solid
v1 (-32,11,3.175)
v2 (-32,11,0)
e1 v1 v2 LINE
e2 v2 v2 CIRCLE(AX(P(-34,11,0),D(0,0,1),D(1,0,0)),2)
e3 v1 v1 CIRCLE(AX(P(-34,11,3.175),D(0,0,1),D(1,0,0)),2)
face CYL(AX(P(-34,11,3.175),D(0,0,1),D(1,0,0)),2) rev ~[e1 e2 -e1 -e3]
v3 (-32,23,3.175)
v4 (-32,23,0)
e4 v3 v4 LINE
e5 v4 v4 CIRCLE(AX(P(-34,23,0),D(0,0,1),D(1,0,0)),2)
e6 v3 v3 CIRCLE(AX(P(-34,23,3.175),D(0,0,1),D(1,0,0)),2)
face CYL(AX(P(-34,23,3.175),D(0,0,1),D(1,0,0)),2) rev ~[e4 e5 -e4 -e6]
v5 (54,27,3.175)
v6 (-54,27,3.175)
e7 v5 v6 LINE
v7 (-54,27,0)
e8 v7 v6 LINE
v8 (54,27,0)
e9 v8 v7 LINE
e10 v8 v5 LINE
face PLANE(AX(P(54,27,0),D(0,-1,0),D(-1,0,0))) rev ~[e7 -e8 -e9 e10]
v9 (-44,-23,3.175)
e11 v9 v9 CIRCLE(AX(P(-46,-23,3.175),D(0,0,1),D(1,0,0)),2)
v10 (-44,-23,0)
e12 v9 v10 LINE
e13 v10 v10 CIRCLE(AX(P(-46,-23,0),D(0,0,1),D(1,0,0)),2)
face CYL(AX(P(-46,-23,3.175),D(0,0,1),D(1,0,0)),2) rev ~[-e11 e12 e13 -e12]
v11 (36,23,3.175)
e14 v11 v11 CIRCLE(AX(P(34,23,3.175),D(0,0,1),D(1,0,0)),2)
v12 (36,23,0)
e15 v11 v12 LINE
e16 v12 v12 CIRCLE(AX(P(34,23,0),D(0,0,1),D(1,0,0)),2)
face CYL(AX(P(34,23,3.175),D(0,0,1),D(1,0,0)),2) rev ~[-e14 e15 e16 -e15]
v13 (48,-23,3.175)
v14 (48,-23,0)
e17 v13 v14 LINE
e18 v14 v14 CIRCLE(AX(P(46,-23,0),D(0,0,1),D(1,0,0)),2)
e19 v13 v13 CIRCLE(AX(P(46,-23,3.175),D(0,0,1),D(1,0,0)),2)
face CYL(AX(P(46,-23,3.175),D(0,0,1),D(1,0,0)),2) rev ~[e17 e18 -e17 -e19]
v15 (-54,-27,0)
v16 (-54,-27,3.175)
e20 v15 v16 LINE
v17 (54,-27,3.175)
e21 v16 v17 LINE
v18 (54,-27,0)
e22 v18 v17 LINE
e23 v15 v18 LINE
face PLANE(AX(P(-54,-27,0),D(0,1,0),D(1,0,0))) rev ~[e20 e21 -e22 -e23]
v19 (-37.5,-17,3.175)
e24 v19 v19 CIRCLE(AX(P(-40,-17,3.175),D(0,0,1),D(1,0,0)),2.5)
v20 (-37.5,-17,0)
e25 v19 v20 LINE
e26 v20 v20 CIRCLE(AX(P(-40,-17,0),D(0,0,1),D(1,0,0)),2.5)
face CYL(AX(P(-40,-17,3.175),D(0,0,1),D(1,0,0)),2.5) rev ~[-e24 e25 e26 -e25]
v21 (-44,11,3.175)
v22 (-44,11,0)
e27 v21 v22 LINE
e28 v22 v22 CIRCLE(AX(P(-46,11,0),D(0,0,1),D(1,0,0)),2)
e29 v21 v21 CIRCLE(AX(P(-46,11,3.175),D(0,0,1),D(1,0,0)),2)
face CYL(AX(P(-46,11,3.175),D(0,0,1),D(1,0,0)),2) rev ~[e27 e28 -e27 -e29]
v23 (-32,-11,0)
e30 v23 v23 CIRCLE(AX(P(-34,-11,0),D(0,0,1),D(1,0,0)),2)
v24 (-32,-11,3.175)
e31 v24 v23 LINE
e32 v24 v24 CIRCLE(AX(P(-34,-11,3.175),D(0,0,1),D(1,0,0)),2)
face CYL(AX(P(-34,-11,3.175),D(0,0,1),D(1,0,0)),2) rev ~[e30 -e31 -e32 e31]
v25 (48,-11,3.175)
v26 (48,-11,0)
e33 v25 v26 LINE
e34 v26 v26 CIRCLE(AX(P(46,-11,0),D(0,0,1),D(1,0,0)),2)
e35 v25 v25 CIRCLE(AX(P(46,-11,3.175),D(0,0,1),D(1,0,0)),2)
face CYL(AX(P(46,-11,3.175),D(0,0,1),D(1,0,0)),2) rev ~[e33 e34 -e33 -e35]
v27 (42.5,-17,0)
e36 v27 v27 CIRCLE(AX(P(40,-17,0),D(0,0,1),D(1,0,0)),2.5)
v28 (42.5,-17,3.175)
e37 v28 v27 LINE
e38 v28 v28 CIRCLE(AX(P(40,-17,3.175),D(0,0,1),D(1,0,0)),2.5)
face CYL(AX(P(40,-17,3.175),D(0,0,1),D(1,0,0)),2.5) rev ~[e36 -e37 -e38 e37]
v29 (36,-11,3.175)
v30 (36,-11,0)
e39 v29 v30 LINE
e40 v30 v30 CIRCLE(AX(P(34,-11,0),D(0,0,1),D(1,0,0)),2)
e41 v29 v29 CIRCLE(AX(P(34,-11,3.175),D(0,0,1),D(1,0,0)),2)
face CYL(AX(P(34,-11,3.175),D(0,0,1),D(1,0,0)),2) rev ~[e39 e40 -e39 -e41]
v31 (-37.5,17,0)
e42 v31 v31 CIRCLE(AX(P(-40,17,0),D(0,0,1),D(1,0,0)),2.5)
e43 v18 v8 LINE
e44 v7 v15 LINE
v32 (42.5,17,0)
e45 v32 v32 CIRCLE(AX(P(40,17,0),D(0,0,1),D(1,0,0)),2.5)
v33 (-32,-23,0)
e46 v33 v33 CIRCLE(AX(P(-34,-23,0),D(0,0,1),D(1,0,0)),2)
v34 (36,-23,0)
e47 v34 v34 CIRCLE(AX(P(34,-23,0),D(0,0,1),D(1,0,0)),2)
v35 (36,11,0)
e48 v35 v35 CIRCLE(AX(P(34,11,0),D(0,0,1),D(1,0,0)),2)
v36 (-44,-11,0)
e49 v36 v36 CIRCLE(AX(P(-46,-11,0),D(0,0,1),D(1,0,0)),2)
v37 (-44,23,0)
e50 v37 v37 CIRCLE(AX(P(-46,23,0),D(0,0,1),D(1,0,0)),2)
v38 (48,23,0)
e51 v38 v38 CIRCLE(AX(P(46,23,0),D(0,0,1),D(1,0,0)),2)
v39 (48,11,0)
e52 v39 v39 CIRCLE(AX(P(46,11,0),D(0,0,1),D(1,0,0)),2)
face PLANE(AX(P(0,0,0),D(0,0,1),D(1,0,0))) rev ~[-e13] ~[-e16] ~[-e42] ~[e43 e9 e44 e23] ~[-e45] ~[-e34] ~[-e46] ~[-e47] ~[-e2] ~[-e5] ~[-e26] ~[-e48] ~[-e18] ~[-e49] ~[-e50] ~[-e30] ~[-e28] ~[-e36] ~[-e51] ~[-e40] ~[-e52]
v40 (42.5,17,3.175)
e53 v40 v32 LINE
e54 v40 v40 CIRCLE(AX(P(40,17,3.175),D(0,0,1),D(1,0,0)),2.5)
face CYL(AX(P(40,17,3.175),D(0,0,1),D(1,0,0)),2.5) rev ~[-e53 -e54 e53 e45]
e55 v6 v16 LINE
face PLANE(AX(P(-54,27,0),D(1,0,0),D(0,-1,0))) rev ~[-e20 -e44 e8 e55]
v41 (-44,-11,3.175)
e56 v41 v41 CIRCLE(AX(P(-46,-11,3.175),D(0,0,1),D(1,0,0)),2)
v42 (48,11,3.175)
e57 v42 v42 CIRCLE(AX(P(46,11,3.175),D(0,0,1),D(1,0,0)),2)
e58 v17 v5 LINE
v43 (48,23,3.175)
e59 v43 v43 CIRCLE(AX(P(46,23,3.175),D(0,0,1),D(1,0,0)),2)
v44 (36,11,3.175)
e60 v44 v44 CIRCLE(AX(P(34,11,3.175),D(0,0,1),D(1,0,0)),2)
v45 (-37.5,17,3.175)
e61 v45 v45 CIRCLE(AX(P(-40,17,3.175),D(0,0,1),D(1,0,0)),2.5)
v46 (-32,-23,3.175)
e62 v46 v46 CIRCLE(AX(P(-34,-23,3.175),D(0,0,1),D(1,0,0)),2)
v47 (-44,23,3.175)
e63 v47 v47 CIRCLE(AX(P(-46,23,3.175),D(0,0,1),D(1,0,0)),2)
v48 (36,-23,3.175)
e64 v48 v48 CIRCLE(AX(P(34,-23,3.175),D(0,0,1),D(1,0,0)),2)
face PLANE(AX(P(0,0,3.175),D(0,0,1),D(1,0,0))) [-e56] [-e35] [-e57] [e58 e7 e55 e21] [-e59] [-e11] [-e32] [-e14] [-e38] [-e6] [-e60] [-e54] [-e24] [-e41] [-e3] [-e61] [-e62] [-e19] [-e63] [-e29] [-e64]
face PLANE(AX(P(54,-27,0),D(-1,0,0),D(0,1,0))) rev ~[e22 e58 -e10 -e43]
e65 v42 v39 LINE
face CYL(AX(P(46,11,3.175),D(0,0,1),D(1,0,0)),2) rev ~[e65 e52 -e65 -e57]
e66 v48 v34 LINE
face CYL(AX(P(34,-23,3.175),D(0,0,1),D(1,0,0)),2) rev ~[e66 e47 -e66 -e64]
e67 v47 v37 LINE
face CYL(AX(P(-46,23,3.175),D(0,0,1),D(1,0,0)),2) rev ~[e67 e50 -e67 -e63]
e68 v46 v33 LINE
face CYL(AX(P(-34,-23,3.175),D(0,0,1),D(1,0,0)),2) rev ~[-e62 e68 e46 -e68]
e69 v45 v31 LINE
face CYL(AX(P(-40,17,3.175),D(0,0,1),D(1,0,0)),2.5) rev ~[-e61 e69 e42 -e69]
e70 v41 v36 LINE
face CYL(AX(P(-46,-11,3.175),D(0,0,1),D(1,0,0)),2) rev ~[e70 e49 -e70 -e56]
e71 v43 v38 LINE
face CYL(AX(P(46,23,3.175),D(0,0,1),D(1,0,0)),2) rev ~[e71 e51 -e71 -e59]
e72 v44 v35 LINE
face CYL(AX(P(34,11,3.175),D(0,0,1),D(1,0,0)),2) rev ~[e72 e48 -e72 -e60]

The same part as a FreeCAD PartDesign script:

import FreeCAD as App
import Part
import Sketcher
Q = App.Units.Quantity


def add_polygon(sketch, points):
    """Adds a closed chain of lines whose ends are joined by coincident constraints."""
    first, n = sketch.GeometryCount, len(points)
    for a, b in zip(points, points[1:] + points[:1]):
        sketch.addGeometry(Part.LineSegment(App.Vector(*a, 0), App.Vector(*b, 0)), False)
    for i in range(n):
        sketch.addConstraint(Sketcher.Constraint("Coincident", first + i, 2, first + (i + 1) % n, 1))

doc = App.newDocument("Part")
body = doc.addObject("PartDesign::Body", "Body")

sketch1 = body.newObject("Sketcher::SketchObject", "Sketch")
sketch1.AttachmentSupport = (doc.getObject("XY_Plane"), [""])
sketch1.MapMode = "FlatFace"
add_polygon(sketch1, [(-54, 27), (-54, -27), (54, -27), (54, 27)])
sketch1.addConstraint([
    Sketcher.Constraint("Vertical", 0),
    Sketcher.Constraint("Horizontal", 1),
    Sketcher.Constraint("Vertical", 2),
    Sketcher.Constraint("Horizontal", 3),
    Sketcher.Constraint("Symmetric", 0, 2, 2, 2, -1, 1),
    Sketcher.Constraint("DistanceX", 1, 1, 1, 2, Q("108 mm")),
    Sketcher.Constraint("DistanceY", 0, 2, 0, 1, Q("54 mm")),
])
pad1 = body.newObject("PartDesign::Pad", "Pad")
pad1.Profile = sketch1
pad1.Length = 3.175

sketch2 = body.newObject("Sketcher::SketchObject", "Sketch001")
sketch2.AttachmentSupport = (doc.getObject("XY_Plane"), [""])
sketch2.MapMode = "FlatFace"
sketch2.AttachmentOffset = App.Placement(App.Vector(0, 0, 3.175), App.Rotation())
sketch2.addGeometry([
    Part.Circle(App.Vector(-40, -17, 0), App.Vector(0, 0, 1), 2.5),
    Part.Circle(App.Vector(-46, -23, 0), App.Vector(0, 0, 1), 2),
    Part.Circle(App.Vector(-34, -23, 0), App.Vector(0, 0, 1), 2),
    Part.Circle(App.Vector(-34, -11, 0), App.Vector(0, 0, 1), 2),
    Part.Circle(App.Vector(-46, -11, 0), App.Vector(0, 0, 1), 2),
    Part.Circle(App.Vector(40, -17, 0), App.Vector(0, 0, 1), 2.5),
    Part.Circle(App.Vector(46, -23, 0), App.Vector(0, 0, 1), 2),
    Part.Circle(App.Vector(34, -23, 0), App.Vector(0, 0, 1), 2),
    Part.Circle(App.Vector(34, -11, 0), App.Vector(0, 0, 1), 2),
    Part.Circle(App.Vector(46, -11, 0), App.Vector(0, 0, 1), 2),
    Part.Circle(App.Vector(-40, 17, 0), App.Vector(0, 0, 1), 2.5),
    Part.Circle(App.Vector(-46, 23, 0), App.Vector(0, 0, 1), 2),
    Part.Circle(App.Vector(-34, 23, 0), App.Vector(0, 0, 1), 2),
    Part.Circle(App.Vector(-34, 11, 0), App.Vector(0, 0, 1), 2),
    Part.Circle(App.Vector(-46, 11, 0), App.Vector(0, 0, 1), 2),
    Part.Circle(App.Vector(34, 11, 0), App.Vector(0, 0, 1), 2),
    Part.Circle(App.Vector(34, 23, 0), App.Vector(0, 0, 1), 2),
    Part.Circle(App.Vector(40, 17, 0), App.Vector(0, 0, 1), 2.5),
    Part.Circle(App.Vector(46, 11, 0), App.Vector(0, 0, 1), 2),
    Part.Circle(App.Vector(46, 23, 0), App.Vector(0, 0, 1), 2),
], False)
sketch2.addConstraint([
    Sketcher.Constraint("Equal", 1, 2),
    Sketcher.Constraint("Equal", 2, 3),
    Sketcher.Constraint("Equal", 3, 4),
    Sketcher.Constraint("Equal", 0, 5),
    Sketcher.Constraint("Equal", 4, 6),
    Sketcher.Constraint("Equal", 6, 7),
    Sketcher.Constraint("Equal", 7, 8),
    Sketcher.Constraint("Equal", 8, 9),
    Sketcher.Constraint("Equal", 5, 10),
    Sketcher.Constraint("Equal", 9, 11),
    Sketcher.Constraint("Equal", 11, 12),
    Sketcher.Constraint("Equal", 12, 13),
    Sketcher.Constraint("Equal", 13, 14),
    Sketcher.Constraint("Equal", 14, 15),
    Sketcher.Constraint("Equal", 15, 16),
    Sketcher.Constraint("Equal", 10, 17),
    Sketcher.Constraint("Equal", 16, 18),
    Sketcher.Constraint("Equal", 18, 19),
    Sketcher.Constraint("Symmetric", 5, 3, 10, 3, -1, 1),
    Sketcher.Constraint("Symmetric", 6, 3, 11, 3, -1, 1),
    Sketcher.Constraint("Symmetric", 7, 3, 12, 3, -1, 1),
    Sketcher.Constraint("Symmetric", 8, 3, 13, 3, -1, 1),
    Sketcher.Constraint("Symmetric", 9, 3, 14, 3, -1, 1),
    Sketcher.Constraint("Symmetric", 3, 3, 15, 3, -1, 1),
    Sketcher.Constraint("Symmetric", 2, 3, 16, 3, -1, 1),
    Sketcher.Constraint("Symmetric", 0, 3, 17, 3, -1, 1),
    Sketcher.Constraint("Symmetric", 4, 3, 18, 3, -1, 1),
    Sketcher.Constraint("Symmetric", 1, 3, 19, 3, -1, 1),
    Sketcher.Constraint("Symmetric", 0, 3, 5, 3, -2),
    Sketcher.Constraint("Symmetric", 1, 3, 6, 3, -2),
    Sketcher.Constraint("Symmetric", 2, 3, 7, 3, -2),
    Sketcher.Constraint("Symmetric", 3, 3, 8, 3, -2),
    Sketcher.Constraint("Symmetric", 4, 3, 9, 3, -2),
    Sketcher.Constraint("Horizontal", 1, 3, 2, 3),
    Sketcher.Constraint("Horizontal", 3, 3, 4, 3),
    Sketcher.Constraint("Vertical", 2, 3, 3, 3),
    Sketcher.Constraint("Vertical", 1, 3, 4, 3),
    Sketcher.Constraint("Diameter", 0, Q("5 mm")),
    Sketcher.Constraint("Diameter", 1, Q("4 mm")),
    Sketcher.Constraint("DistanceX", 0, 3, -1, 1, Q("40 mm")),
    Sketcher.Constraint("DistanceX", 1, 3, 0, 3, Q("6 mm")),
    Sketcher.Constraint("DistanceY", 1, 3, 0, 3, Q("6 mm")),
    Sketcher.Constraint("DistanceX", 0, 3, 2, 3, Q("6 mm")),
    Sketcher.Constraint("DistanceY", 0, 3, 3, 3, Q("6 mm")),
    Sketcher.Constraint("DistanceY", 1, 3, 10, 3, Q("40 mm")),
])
pocket1 = body.newObject("PartDesign::Pocket", "Pocket")
pocket1.Profile = sketch2
pocket1.Type = "ThroughAll"

doc.recompute()
